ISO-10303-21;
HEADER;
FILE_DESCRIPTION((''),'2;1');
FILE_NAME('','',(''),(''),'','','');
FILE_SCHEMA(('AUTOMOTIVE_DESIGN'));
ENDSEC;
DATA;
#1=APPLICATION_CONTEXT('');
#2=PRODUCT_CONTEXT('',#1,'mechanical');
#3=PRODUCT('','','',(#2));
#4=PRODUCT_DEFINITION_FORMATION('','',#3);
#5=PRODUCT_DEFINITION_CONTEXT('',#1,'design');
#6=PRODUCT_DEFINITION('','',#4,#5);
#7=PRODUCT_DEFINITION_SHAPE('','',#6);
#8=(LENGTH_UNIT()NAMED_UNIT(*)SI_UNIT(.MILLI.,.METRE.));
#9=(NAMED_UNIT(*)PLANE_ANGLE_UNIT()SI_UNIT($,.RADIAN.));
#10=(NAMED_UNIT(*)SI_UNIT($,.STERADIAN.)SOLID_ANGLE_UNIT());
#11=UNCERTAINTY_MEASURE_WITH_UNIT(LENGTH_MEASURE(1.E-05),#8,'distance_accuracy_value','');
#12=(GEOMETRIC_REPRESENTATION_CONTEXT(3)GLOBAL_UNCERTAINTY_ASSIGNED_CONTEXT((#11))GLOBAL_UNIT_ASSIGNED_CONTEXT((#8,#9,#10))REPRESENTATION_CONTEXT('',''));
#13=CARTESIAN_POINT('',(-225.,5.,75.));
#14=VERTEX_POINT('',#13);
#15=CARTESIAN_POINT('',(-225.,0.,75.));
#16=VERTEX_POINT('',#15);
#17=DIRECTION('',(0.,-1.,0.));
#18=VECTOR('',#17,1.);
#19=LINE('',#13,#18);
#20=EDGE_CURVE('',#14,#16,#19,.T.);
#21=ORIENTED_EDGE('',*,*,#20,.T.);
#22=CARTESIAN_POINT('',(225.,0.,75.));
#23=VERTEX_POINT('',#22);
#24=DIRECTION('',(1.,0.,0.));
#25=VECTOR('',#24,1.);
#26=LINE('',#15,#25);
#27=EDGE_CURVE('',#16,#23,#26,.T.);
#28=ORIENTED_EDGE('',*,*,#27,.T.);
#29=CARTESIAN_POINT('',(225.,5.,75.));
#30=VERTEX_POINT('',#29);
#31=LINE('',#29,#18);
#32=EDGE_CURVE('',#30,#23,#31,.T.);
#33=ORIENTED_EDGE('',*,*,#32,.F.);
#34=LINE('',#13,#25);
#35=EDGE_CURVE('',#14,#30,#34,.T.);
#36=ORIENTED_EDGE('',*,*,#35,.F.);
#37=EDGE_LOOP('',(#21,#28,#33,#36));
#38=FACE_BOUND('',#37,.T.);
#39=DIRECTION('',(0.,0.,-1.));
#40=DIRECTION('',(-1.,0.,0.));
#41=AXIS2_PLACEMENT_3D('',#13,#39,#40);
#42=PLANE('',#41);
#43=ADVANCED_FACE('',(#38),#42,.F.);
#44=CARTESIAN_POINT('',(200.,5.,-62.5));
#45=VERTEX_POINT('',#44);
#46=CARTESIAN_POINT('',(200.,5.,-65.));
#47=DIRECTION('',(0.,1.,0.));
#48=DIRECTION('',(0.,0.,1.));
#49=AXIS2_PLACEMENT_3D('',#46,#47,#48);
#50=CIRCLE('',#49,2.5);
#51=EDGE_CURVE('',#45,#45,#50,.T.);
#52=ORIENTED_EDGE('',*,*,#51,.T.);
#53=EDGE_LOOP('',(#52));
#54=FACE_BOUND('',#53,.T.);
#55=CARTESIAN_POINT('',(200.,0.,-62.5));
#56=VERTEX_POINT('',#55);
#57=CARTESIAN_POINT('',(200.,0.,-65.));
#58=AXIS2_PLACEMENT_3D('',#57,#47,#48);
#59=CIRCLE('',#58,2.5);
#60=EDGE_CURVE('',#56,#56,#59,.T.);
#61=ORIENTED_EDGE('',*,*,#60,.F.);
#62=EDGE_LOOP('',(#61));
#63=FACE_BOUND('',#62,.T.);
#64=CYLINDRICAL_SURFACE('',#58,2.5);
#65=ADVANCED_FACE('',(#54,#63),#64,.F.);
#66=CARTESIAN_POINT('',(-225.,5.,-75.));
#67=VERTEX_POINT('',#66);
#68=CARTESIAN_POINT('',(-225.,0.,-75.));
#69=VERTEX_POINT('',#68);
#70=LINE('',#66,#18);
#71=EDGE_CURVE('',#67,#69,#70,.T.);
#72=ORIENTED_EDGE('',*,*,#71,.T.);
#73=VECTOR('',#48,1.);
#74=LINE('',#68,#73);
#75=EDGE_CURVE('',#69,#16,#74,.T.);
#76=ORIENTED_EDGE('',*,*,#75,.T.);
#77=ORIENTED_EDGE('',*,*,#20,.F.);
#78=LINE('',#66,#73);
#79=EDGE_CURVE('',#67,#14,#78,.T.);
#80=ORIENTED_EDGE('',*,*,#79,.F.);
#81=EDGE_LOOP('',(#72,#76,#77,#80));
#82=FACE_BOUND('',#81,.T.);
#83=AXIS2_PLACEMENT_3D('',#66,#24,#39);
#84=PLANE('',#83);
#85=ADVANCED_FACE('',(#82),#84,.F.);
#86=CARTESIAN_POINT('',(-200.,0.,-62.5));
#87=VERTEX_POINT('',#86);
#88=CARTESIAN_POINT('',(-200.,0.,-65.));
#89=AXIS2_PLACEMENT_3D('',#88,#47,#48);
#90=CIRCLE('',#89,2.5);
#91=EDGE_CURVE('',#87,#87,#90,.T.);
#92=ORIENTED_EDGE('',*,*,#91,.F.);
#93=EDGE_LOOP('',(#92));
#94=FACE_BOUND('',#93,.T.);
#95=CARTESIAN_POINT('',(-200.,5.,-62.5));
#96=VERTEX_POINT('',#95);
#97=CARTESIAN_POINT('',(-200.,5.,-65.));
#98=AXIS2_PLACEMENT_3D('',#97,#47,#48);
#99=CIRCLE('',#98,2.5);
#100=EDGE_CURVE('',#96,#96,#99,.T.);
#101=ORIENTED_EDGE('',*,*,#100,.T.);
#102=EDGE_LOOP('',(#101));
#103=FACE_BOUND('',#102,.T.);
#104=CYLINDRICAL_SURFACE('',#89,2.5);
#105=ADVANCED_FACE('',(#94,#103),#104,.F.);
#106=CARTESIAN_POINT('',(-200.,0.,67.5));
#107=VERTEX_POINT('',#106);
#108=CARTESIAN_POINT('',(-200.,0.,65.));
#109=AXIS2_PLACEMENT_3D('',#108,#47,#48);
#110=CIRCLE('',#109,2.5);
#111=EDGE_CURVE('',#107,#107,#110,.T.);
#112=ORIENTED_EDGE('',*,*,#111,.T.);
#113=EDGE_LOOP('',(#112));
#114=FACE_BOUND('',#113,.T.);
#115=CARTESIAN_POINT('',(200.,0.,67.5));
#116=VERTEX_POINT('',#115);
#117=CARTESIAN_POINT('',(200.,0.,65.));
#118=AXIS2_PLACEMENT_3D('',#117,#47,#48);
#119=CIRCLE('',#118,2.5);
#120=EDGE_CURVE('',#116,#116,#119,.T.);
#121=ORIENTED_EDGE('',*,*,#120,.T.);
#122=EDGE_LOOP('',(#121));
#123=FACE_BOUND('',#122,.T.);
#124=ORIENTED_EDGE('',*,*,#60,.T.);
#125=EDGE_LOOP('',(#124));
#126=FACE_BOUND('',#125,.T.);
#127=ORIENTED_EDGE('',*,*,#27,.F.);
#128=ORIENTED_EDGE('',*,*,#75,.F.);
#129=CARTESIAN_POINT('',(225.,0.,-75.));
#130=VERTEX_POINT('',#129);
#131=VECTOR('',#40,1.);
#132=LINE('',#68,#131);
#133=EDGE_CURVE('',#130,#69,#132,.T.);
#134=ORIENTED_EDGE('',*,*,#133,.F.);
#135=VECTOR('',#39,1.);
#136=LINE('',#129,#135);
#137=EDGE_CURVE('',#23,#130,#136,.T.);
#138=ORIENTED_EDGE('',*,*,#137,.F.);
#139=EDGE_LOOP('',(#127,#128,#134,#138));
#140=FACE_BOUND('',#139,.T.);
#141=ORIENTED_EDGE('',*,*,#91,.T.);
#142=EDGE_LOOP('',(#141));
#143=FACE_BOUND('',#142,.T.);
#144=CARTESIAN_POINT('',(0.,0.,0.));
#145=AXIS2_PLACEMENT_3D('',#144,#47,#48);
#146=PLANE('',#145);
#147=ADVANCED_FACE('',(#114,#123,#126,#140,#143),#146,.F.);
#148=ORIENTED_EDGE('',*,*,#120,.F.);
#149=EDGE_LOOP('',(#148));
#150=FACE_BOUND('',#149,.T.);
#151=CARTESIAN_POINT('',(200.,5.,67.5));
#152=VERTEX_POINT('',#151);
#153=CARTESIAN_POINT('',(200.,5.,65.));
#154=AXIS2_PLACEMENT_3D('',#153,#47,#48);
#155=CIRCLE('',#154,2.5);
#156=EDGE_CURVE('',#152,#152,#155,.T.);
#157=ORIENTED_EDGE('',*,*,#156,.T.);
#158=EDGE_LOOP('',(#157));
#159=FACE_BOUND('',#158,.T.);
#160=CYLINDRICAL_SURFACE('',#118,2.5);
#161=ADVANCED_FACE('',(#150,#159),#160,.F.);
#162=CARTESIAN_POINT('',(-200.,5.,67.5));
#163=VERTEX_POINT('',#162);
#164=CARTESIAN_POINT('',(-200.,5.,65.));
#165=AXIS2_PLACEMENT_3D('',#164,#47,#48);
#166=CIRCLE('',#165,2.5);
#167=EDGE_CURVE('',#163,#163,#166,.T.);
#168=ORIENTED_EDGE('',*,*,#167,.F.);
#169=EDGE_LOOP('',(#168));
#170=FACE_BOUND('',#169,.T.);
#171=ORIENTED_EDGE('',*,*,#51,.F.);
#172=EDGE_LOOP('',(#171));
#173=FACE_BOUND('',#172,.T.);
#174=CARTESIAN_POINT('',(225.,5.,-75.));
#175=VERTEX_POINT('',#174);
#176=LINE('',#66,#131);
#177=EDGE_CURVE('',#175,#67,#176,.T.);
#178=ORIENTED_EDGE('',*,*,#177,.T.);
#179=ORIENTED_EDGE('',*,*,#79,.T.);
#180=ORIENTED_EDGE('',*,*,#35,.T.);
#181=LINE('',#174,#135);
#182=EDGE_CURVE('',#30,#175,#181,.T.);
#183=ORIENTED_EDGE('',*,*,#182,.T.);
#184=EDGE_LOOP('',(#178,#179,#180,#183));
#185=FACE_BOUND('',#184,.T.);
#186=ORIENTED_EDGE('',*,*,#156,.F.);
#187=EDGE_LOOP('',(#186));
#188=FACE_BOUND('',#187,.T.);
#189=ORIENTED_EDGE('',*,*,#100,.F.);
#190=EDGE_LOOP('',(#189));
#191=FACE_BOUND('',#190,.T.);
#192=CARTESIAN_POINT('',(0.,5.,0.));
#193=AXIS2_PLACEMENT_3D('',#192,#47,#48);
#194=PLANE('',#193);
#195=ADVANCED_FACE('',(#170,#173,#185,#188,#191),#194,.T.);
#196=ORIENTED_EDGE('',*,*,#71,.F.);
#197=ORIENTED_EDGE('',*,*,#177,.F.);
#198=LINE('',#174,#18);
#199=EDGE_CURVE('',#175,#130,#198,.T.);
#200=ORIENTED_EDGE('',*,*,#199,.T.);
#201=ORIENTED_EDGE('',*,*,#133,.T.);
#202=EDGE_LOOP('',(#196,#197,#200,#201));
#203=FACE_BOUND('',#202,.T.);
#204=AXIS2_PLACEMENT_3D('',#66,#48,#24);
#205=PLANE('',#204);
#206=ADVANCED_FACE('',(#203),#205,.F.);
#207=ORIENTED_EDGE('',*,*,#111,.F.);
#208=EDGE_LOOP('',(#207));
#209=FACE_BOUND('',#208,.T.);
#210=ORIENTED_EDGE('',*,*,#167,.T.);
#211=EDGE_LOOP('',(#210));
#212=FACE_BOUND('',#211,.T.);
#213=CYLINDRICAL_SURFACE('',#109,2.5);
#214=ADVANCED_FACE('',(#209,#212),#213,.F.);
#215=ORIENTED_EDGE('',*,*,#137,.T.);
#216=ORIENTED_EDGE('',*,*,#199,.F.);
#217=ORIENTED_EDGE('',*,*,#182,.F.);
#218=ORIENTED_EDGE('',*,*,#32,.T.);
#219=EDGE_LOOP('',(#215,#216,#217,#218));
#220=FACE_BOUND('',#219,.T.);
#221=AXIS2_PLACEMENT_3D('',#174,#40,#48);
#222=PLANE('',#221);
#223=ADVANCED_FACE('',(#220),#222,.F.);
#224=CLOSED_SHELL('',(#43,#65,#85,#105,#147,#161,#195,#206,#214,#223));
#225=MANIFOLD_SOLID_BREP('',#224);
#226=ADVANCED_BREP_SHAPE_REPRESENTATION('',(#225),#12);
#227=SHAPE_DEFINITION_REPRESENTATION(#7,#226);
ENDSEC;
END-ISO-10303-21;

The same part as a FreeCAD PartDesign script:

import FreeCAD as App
import Part
import Sketcher

doc = App.newDocument("Part")
body = doc.addObject("PartDesign::Body", "Body")

sketch1 = body.newObject("Sketcher::SketchObject", "Sketch")
sketch1.AttachmentSupport = (doc.getObject("XZ_Plane"), [""])
sketch1.MapMode = "FlatFace"
sketch1.addGeometry(Part.LineSegment(App.Vector(-225, -75, 0), App.Vector(-225, 75, 0)), False)
sketch1.addGeometry(Part.LineSegment(App.Vector(-225, 75, 0), App.Vector(225, 75, 0)), False)
sketch1.addGeometry(Part.LineSegment(App.Vector(225, 75, 0), App.Vector(225, -75, 0)), False)
sketch1.addGeometry(Part.LineSegment(App.Vector(225, -75, 0), App.Vector(-225, -75, 0)), False)
sketch1.addConstraint(Sketcher.Constraint("Coincident", 0, 2, 1, 1))
sketch1.addConstraint(Sketcher.Constraint("Coincident", 1, 2, 2, 1))
sketch1.addConstraint(Sketcher.Constraint("Coincident", 2, 2, 3, 1))
sketch1.addConstraint(Sketcher.Constraint("Coincident", 3, 2, 0, 1))
sketch1.addConstraint(Sketcher.Constraint("Vertical", 0))
sketch1.addConstraint(Sketcher.Constraint("Horizontal", 1))
sketch1.addConstraint(Sketcher.Constraint("Vertical", 2))
sketch1.addConstraint(Sketcher.Constraint("Horizontal", 3))
sketch1.addConstraint(Sketcher.Constraint("Symmetric", 0, 2, 2, 2, -1, 1))
sketch1.addConstraint(Sketcher.Constraint("DistanceX", 1, 1, 1, 2, 450.0))
sketch1.addConstraint(Sketcher.Constraint("DistanceY", 0, 1, 0, 2, 150.0))
pad1 = body.newObject("PartDesign::Pad", "Pad")
pad1.Profile = sketch1
pad1.Length = 5
pad1.Reversed = True

sketch2 = body.newObject("Sketcher::SketchObject", "Sketch001")
sketch2.AttachmentSupport = (doc.getObject("XZ_Plane"), [""])
sketch2.MapMode = "FlatFace"
sketch2.AttachmentOffset = App.Placement(App.Vector(0, 0, -5), App.Rotation())
sketch2.addGeometry(Part.Circle(App.Vector(-200, -65, 0), App.Vector(0, 0, 1), 2.5), False)
sketch2.addGeometry(Part.Circle(App.Vector(-200, 65, 0), App.Vector(0, 0, 1), 2.5), False)
sketch2.addGeometry(Part.Circle(App.Vector(200, -65, 0), App.Vector(0, 0, 1), 2.5), False)
sketch2.addGeometry(Part.Circle(App.Vector(200, 65, 0), App.Vector(0, 0, 1), 2.5), False)
sketch2.addConstraint(Sketcher.Constraint("Equal", 0, 1))
sketch2.addConstraint(Sketcher.Constraint("Equal", 1, 2))
sketch2.addConstraint(Sketcher.Constraint("Equal", 2, 3))
sketch2.addConstraint(Sketcher.Constraint("Symmetric", 1, 3, 2, 3, -1, 1))
sketch2.addConstraint(Sketcher.Constraint("Symmetric", 0, 3, 3, 3, -1, 1))
sketch2.addConstraint(Sketcher.Constraint("Symmetric", 0, 3, 2, 3, -2))
sketch2.addConstraint(Sketcher.Constraint("Diameter", 0, 5.0))
sketch2.addConstraint(Sketcher.Constraint("DistanceX", 0, 3, -1, 1, 200.0))
sketch2.addConstraint(Sketcher.Constraint("DistanceY", 0, 3, -1, 1, 65.0))
pocket1 = body.newObject("PartDesign::Pocket", "Pocket")
pocket1.Profile = sketch2
pocket1.Type = "ThroughAll"
pocket1.Reversed = True

doc.recompute()
